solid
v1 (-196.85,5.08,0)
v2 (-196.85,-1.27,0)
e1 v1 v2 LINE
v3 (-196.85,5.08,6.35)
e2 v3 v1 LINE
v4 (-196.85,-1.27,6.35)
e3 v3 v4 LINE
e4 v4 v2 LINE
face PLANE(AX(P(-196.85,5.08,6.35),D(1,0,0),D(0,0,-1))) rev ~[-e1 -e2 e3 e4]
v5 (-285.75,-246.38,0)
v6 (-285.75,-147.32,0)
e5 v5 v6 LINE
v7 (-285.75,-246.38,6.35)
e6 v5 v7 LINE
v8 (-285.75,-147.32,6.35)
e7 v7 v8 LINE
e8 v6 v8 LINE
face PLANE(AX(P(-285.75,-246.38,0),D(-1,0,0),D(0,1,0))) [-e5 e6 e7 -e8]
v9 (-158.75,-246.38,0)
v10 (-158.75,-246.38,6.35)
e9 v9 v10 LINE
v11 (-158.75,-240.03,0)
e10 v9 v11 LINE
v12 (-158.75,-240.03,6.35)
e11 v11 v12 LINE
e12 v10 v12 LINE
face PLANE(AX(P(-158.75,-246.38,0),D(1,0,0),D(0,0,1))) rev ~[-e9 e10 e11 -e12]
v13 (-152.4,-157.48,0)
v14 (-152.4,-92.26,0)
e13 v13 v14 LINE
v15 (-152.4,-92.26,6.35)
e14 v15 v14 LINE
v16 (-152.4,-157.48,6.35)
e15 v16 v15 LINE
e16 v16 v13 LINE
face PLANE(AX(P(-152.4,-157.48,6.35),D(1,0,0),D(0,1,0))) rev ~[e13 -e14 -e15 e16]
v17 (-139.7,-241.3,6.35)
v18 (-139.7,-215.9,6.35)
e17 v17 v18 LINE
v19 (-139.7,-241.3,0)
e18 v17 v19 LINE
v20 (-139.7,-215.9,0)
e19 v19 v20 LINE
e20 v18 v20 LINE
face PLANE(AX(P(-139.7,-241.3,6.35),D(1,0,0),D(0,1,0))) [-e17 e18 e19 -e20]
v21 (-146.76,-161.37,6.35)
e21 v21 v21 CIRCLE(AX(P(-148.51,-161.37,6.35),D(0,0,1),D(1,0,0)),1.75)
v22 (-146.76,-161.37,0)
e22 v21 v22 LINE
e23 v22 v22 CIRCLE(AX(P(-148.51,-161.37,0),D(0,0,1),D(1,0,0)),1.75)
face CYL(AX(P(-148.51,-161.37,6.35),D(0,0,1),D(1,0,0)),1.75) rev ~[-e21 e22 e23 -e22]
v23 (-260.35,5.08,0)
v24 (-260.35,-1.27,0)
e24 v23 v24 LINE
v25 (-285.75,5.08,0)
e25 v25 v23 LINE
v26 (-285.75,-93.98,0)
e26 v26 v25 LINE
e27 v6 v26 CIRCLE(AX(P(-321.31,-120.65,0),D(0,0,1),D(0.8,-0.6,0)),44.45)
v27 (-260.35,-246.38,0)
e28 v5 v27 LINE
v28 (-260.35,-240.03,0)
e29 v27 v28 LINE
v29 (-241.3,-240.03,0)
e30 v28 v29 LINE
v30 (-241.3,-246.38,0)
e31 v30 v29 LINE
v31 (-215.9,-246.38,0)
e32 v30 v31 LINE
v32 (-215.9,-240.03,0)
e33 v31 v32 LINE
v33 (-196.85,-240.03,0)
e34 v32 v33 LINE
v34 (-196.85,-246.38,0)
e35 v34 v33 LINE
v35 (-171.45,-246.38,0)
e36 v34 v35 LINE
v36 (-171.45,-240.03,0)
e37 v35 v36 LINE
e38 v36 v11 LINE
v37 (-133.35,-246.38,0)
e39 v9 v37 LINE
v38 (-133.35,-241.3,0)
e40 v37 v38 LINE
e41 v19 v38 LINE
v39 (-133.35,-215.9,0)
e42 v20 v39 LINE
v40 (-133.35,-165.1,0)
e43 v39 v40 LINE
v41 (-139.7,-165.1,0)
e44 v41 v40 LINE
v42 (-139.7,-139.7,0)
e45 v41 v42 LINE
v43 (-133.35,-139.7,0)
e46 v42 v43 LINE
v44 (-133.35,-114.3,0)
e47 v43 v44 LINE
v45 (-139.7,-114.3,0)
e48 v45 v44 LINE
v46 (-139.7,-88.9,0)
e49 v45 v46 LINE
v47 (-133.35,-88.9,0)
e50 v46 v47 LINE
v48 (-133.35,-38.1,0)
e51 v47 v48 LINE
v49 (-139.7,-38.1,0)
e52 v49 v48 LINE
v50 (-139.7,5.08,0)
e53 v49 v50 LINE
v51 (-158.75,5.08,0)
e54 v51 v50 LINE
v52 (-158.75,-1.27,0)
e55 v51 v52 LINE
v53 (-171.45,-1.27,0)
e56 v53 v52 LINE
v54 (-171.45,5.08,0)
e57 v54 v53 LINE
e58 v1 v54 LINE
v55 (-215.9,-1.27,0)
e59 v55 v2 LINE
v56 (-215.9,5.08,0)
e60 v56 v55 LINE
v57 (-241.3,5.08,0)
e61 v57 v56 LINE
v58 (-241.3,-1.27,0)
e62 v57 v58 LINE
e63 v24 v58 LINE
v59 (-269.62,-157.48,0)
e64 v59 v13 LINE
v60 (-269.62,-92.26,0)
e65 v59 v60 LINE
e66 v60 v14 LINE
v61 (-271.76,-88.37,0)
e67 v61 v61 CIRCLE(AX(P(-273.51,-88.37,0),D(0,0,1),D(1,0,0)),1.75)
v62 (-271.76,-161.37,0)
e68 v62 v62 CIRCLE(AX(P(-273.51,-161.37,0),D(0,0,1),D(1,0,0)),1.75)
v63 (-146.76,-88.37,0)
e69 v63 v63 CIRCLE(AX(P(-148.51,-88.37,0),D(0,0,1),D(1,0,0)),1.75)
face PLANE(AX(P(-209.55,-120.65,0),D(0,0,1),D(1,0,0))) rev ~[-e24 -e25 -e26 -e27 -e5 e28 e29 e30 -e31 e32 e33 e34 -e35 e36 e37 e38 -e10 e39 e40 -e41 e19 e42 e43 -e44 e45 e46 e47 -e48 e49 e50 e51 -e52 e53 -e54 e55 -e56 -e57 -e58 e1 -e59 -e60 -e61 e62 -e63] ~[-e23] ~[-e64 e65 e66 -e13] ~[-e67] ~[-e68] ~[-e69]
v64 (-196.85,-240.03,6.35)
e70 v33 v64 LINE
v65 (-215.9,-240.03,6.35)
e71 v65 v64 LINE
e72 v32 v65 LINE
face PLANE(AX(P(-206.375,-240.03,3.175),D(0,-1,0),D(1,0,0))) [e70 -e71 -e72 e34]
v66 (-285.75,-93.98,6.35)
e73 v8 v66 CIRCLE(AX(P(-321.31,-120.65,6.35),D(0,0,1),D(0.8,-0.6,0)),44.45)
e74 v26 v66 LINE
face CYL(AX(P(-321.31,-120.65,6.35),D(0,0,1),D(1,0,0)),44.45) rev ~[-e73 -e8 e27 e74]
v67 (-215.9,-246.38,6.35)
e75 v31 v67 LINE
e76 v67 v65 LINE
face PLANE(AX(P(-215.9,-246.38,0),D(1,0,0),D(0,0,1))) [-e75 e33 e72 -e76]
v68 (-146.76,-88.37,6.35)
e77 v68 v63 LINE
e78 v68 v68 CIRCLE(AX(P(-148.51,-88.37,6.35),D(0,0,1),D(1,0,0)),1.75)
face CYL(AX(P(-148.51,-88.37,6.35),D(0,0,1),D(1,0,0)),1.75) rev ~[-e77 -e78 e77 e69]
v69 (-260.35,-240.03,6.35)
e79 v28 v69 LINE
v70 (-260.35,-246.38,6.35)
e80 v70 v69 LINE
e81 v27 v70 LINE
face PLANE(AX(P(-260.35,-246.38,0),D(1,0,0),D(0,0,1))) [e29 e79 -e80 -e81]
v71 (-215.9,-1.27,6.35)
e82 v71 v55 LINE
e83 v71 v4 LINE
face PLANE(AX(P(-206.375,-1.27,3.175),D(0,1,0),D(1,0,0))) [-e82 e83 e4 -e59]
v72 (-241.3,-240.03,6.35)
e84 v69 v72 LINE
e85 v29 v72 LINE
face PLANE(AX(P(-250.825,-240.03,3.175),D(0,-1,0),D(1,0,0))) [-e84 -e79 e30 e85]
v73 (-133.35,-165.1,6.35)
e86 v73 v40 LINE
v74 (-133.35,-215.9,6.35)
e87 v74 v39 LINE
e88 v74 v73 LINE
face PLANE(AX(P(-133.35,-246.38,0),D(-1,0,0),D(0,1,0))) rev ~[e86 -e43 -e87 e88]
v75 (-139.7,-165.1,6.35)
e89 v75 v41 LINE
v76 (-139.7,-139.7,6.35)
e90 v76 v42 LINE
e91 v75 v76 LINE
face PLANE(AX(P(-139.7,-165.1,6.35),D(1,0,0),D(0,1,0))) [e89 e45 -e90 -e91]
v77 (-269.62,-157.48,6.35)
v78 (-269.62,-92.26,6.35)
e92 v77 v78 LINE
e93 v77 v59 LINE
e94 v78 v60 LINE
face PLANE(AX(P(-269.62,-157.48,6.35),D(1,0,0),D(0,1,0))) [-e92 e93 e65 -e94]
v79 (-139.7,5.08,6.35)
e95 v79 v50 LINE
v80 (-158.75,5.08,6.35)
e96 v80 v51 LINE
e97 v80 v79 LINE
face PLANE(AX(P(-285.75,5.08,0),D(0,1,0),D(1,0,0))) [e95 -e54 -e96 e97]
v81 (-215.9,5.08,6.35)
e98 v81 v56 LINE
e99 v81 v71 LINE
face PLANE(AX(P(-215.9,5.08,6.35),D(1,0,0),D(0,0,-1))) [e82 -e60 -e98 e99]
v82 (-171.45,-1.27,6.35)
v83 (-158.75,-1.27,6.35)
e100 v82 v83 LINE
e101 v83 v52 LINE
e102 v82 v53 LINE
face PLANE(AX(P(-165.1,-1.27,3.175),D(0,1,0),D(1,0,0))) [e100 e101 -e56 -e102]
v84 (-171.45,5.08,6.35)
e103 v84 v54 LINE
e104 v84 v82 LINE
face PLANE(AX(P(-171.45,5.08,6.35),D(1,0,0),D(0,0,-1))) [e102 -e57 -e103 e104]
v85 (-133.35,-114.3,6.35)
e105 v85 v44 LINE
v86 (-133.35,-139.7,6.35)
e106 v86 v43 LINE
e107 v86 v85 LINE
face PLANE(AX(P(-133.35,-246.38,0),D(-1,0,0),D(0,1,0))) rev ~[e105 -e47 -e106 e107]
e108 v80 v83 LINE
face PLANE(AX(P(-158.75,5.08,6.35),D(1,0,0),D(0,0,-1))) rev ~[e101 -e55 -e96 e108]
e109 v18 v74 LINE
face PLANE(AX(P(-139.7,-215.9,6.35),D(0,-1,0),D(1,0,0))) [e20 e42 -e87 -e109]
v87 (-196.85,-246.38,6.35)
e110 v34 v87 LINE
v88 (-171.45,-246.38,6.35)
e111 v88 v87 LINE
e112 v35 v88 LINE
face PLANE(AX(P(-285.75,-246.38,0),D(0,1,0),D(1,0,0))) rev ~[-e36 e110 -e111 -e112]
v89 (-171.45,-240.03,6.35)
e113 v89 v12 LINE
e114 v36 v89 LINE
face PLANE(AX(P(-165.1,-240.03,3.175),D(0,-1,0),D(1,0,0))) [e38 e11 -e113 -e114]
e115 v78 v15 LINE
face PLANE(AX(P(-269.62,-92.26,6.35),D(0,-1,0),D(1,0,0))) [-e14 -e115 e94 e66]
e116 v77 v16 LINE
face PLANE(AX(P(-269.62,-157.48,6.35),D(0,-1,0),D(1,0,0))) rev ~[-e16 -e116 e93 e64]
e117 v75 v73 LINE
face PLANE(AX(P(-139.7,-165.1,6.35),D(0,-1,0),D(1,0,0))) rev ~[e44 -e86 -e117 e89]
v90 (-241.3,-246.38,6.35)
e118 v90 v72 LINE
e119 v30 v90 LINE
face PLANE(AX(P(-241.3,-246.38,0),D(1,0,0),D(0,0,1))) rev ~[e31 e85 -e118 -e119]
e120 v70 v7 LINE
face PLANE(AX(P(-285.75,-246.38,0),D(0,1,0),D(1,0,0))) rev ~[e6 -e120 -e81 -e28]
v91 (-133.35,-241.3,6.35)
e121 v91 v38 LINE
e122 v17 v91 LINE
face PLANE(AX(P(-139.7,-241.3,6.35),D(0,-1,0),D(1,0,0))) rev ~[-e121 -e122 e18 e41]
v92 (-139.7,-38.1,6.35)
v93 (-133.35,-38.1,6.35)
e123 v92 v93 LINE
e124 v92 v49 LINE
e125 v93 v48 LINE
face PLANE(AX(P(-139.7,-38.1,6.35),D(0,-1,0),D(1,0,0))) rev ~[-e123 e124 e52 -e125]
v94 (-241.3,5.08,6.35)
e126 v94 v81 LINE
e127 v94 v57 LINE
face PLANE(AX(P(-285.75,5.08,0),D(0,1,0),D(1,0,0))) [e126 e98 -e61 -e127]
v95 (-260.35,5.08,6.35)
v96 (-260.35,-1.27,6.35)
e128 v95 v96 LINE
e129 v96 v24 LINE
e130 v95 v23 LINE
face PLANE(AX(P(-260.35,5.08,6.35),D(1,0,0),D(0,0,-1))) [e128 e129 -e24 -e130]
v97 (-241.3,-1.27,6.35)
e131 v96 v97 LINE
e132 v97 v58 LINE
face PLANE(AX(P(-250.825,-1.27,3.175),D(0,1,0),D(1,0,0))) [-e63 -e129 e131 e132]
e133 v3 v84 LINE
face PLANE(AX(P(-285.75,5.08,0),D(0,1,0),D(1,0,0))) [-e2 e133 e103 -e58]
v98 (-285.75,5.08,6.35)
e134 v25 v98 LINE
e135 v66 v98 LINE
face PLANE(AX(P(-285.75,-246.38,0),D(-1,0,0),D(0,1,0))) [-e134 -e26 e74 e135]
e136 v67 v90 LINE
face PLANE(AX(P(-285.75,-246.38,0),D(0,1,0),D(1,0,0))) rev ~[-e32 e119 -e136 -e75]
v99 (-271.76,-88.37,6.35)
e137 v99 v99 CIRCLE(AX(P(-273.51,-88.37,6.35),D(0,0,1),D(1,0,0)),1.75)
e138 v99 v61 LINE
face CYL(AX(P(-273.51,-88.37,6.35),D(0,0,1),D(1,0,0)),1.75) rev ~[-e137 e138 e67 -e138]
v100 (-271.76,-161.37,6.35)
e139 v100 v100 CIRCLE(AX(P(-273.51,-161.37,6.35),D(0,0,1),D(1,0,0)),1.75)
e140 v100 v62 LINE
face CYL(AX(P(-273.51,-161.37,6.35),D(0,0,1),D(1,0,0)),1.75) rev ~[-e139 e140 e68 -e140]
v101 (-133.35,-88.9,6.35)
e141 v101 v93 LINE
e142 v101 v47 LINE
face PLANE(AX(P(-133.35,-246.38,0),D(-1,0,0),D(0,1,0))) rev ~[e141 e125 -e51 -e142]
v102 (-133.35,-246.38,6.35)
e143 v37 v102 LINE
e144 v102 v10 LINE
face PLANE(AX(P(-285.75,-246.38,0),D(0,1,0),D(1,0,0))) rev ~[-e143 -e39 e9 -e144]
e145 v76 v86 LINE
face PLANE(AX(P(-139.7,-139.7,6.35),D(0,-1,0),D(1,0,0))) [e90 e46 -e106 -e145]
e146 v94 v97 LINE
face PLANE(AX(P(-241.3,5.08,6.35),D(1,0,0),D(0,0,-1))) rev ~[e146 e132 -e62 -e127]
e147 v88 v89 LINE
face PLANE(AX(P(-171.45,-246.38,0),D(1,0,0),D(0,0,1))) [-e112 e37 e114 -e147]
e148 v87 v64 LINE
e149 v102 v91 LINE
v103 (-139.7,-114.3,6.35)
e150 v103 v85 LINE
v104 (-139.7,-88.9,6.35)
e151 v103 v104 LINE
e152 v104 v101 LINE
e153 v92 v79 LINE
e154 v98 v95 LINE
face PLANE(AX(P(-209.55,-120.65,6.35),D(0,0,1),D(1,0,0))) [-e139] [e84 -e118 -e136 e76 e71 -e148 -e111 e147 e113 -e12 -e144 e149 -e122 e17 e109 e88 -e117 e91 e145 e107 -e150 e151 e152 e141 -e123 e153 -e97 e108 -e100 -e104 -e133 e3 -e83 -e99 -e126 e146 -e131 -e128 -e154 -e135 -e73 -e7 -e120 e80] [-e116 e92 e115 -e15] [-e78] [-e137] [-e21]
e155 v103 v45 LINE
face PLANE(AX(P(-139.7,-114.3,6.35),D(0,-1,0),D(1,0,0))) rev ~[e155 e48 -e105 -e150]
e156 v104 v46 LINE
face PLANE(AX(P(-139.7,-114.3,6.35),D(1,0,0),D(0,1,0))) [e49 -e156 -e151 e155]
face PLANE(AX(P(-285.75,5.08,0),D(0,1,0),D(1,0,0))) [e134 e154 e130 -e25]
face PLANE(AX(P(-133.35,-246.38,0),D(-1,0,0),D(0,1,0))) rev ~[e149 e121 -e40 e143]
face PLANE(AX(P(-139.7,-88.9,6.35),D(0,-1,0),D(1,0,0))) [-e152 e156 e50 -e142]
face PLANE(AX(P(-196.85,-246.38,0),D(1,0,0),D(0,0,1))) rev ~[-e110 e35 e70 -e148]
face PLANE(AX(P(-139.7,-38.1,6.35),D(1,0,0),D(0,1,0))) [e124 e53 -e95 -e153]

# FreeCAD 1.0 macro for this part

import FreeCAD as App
import Part
import Sketcher

V = App.Vector
Q = App.Units.Quantity


def add_polygon(sketch, points):
    """Adds a closed chain of lines whose ends are joined by coincident constraints."""
    first, n = sketch.GeometryCount, len(points)
    for a, b in zip(points, points[1:] + points[:1]):
        sketch.addGeometry(Part.LineSegment(App.Vector(*a, 0), App.Vector(*b, 0)), False)
    for i in range(n):
        sketch.addConstraint(Sketcher.Constraint("Coincident", first + i, 2, first + (i + 1) % n, 1))

doc = App.newDocument("Part")
body = doc.addObject("PartDesign::Body", "Body")

sketch1 = body.newObject("Sketcher::SketchObject", "Sketch")
sketch1.AttachmentSupport = (doc.getObject("XY_Plane"), [""])
sketch1.MapMode = "FlatFace"
add_polygon(sketch1, [(-286, 5), (-286, -246), (-133, -246), (-133, 5)])
sketch1.addConstraint([
    Sketcher.Constraint("Vertical", 0),
    Sketcher.Constraint("Horizontal", 1),
    Sketcher.Constraint("Vertical", 2),
    Sketcher.Constraint("Horizontal", 3),
    Sketcher.Constraint("DistanceX", 1, 1, 1, 2, Q("6 in")),
    Sketcher.Constraint("DistanceY", 0, 2, 0, 1, Q("9.9 in")),
    Sketcher.Constraint("DistanceY", 0, 2, -1, 1, Q("9.7 in")),
    Sketcher.Constraint("DistanceX", 0, 2, -1, 1, Q("11.25 in")),
])
pad1 = body.newObject("PartDesign::Pad", "Pad")
pad1.Profile = sketch1
pad1.Length = Q("0.25 in")

sketch2 = body.newObject("Sketcher::SketchObject", "Sketch001")
sketch2.AttachmentSupport = (doc.getObject("XZ_Plane"), [""])
sketch2.MapMode = "FlatFace"
sketch2.AttachmentOffset = App.Placement(V(0, 0, -0.2 * 25.4), App.Rotation())
add_polygon(sketch2, [(-260, 0), (-260, 6), (-241, 6), (-241, 0)])
add_polygon(sketch2, [(-216, 0), (-216, 6), (-197, 6), (-197, 0)])
add_polygon(sketch2, [(-171, 0), (-171, 6), (-159, 6), (-159, 0)])
sketch2.addConstraint([
    Sketcher.Constraint("Vertical", 0),
    Sketcher.Constraint("Horizontal", 1),
    Sketcher.Constraint("Vertical", 2),
    Sketcher.Constraint("Horizontal", 3),
    Sketcher.Constraint("Vertical", 4),
    Sketcher.Constraint("Horizontal", 5),
    Sketcher.Constraint("Vertical", 6),
    Sketcher.Constraint("Horizontal", 7),
    Sketcher.Constraint("Vertical", 8),
    Sketcher.Constraint("Horizontal", 9),
    Sketcher.Constraint("Vertical", 10),
    Sketcher.Constraint("Horizontal", 11),
    Sketcher.Constraint("PointOnObject", 2, 2, -1),
    Sketcher.Constraint("PointOnObject", 6, 2, -1),
    Sketcher.Constraint("PointOnObject", 10, 2, -1),
    Sketcher.Constraint("Horizontal", 1, 2, 4, 2),
    Sketcher.Constraint("Horizontal", 5, 2, 8, 2),
    Sketcher.Constraint("Equal", 3, 5),
    Sketcher.Constraint("DistanceX", 9, 1, 9, 2, Q("0.5 in")),
    Sketcher.Constraint("DistanceX", 1, 2, 4, 2, Q("1 in")),
    Sketcher.Constraint("DistanceX", 5, 2, 8, 2, Q("1 in")),
    Sketcher.Constraint("DistanceX", 1, 1, 1, 2, Q("0.75 in")),
    Sketcher.Constraint("DistanceY", 0, 1, 0, 2, Q("0.25 in")),
    Sketcher.Constraint("DistanceX", 1, 2, -1, 1, Q("9.5 in")),
])
pocket1 = body.newObject("PartDesign::Pocket", "Pocket")
pocket1.Profile = sketch2
pocket1.Length = Q("0.25 in")
pocket1.Reversed = True

sketch3 = body.newObject("Sketcher::SketchObject", "Sketch002")
sketch3.AttachmentSupport = (doc.getObject("XZ_Plane"), [""])
sketch3.MapMode = "FlatFace"
sketch3.AttachmentOffset = App.Placement(V(0, 0, 9.7 * 25.4), App.Rotation())
add_polygon(sketch3, [(-260, 6), (-260, 0), (-241, 0), (-241, 6)])
add_polygon(sketch3, [(-216, 6), (-216, 0), (-197, 0), (-197, 6)])
add_polygon(sketch3, [(-171, 6), (-171, 0), (-159, 0), (-159, 6)])
sketch3.addConstraint([
    Sketcher.Constraint("Vertical", 0),
    Sketcher.Constraint("Horizontal", 1),
    Sketcher.Constraint("Vertical", 2),
    Sketcher.Constraint("Horizontal", 3),
    Sketcher.Constraint("Vertical", 4),
    Sketcher.Constraint("Horizontal", 5),
    Sketcher.Constraint("Vertical", 6),
    Sketcher.Constraint("Horizontal", 7),
    Sketcher.Constraint("Vertical", 8),
    Sketcher.Constraint("Horizontal", 9),
    Sketcher.Constraint("Vertical", 10),
    Sketcher.Constraint("Horizontal", 11),
    Sketcher.Constraint("PointOnObject", 0, 2, -1),
    Sketcher.Constraint("PointOnObject", 4, 2, -1),
    Sketcher.Constraint("PointOnObject", 8, 2, -1),
    Sketcher.Constraint("Horizontal", 3, 2, 6, 2),
    Sketcher.Constraint("Horizontal", 7, 2, 10, 2),
    Sketcher.Constraint("Equal", 3, 5),
    Sketcher.Constraint("DistanceX", 9, 1, 9, 2, Q("0.5 in")),
    Sketcher.Constraint("DistanceX", 1, 2, 4, 2, Q("1 in")),
    Sketcher.Constraint("DistanceX", 5, 2, 8, 2, Q("1 in")),
    Sketcher.Constraint("DistanceX", 1, 1, 1, 2, Q("0.75 in")),
    Sketcher.Constraint("DistanceY", 0, 2, 0, 1, Q("0.25 in")),
    Sketcher.Constraint("DistanceX", 1, 2, -1, 1, Q("9.5 in")),
])
pocket2 = body.newObject("PartDesign::Pocket", "Pocket001")
pocket2.Profile = sketch3
pocket2.Type = "TwoLengths"
pocket2.Length = 1
pocket2.Length2 = Q("0.25 in")
pocket2.Reversed = True

sketch4 = body.newObject("Sketcher::SketchObject", "Sketch003")
sketch4.AttachmentSupport = (doc.getObject("XY_Plane"), [""])
sketch4.MapMode = "FlatFace"
sketch4.AttachmentOffset = App.Placement(V(0, 0, 0.25 * 25.4), App.Rotation())
add_polygon(sketch4, [(-140, -140), (-140, -165), (-133, -165), (-133, -140)])
add_polygon(sketch4, [(-140, -89), (-140, -114), (-133, -114), (-133, -89)])
add_polygon(sketch4, [(-140, 5), (-140, -38), (-133, -38), (-133, 5)])
add_polygon(sketch4, [(-140, -216), (-140, -241), (-133, -241), (-133, -216)])
sketch4.addConstraint([
    Sketcher.Constraint("Vertical", 0),
    Sketcher.Constraint("Horizontal", 1),
    Sketcher.Constraint("Vertical", 2),
    Sketcher.Constraint("Horizontal", 3),
    Sketcher.Constraint("Vertical", 4),
    Sketcher.Constraint("Horizontal", 5),
    Sketcher.Constraint("Vertical", 6),
    Sketcher.Constraint("Horizontal", 7),
    Sketcher.Constraint("Vertical", 8),
    Sketcher.Constraint("Horizontal", 9),
    Sketcher.Constraint("Vertical", 10),
    Sketcher.Constraint("Horizontal", 11),
    Sketcher.Constraint("Vertical", 12),
    Sketcher.Constraint("Horizontal", 13),
    Sketcher.Constraint("Vertical", 14),
    Sketcher.Constraint("Horizontal", 15),
    Sketcher.Constraint("Vertical", 3, 2, 4, 2),
    Sketcher.Constraint("Vertical", 2, 2, 5, 2),
    Sketcher.Constraint("Vertical", 7, 2, 8, 2),
    Sketcher.Constraint("Vertical", 6, 2, 9, 2),
    Sketcher.Constraint("Vertical", 11, 2, 12, 2),
    Sketcher.Constraint("Vertical", 10, 2, 13, 2),
    Sketcher.Constraint("Equal", 2, 4),
    Sketcher.Constraint("Equal", 6, 12),
    Sketcher.Constraint("DistanceY", 0, 2, 0, 1, Q("1 in")),
    Sketcher.Constraint("DistanceY", 8, 2, 8, 1, Q("1.7 in")),
    Sketcher.Constraint("DistanceY", 3, 2, 4, 2, Q("1 in")),
    Sketcher.Constraint("DistanceY", 7, 2, 8, 2, Q("2 in")),
    Sketcher.Constraint("DistanceY", 12, 2, 0, 2, Q("3 in")),
    Sketcher.Constraint("DistanceX", 1, 1, 1, 2, Q("0.25 in")),
    Sketcher.Constraint("DistanceX", 0, 2, -1, 1, Q("5.5 in")),
    Sketcher.Constraint("DistanceY", 0, 2, -1, 1, Q("6.5 in")),
])
pocket3 = body.newObject("PartDesign::Pocket", "Pocket002")
pocket3.Profile = sketch4
pocket3.Length = Q("0.25 in")

sketch5 = body.newObject("Sketcher::SketchObject", "Sketch004")
sketch5.AttachmentSupport = (doc.getObject("XY_Plane"), [""])
sketch5.MapMode = "FlatFace"
sketch5.AttachmentOffset = App.Placement(V(0, 0, 0.25 * 25.4), App.Rotation())
sketch5.addGeometry(Part.Circle(V(-321, -121, 0), V(0, 0, 1), 44), False)
sketch5.addConstraint([
    Sketcher.Constraint("Diameter", 0, Q("3.5 in")),
    Sketcher.Constraint("DistanceX", 0, 3, -1, 1, Q("12.65 in")),
    Sketcher.Constraint("DistanceY", 0, 3, -1, 1, Q("4.75 in")),
])
pocket4 = body.newObject("PartDesign::Pocket", "Pocket003")
pocket4.Profile = sketch5
pocket4.Type = "ThroughAll"

sketch6 = body.newObject("Sketcher::SketchObject", "Sketch005")
sketch6.AttachmentSupport = (doc.getObject("XY_Plane"), [""])
sketch6.MapMode = "FlatFace"
sketch6.AttachmentOffset = App.Placement(V(0, 0, 0.25 * 25.4), App.Rotation())
add_polygon(sketch6, [(-269.6, -92.3), (-269.6, -157.5), (-152.4, -157.5), (-152.4, -92.3)])
sketch6.addGeometry(Part.Circle(V(-273.5, -88.4, 0), V(0, 0, 1), 1.8), False)
sketch6.addGeometry(Part.Circle(V(-273.5, -161.4, 0), V(0, 0, 1), 1.8), False)
sketch6.addGeometry(Part.Circle(V(-148.5, -88.4, 0), V(0, 0, 1), 1.8), False)
sketch6.addGeometry(Part.Circle(V(-148.5, -161.4, 0), V(0, 0, 1), 1.8), False)
sketch6.addConstraint([
    Sketcher.Constraint("Vertical", 0),
    Sketcher.Constraint("Horizontal", 1),
    Sketcher.Constraint("Vertical", 2),
    Sketcher.Constraint("Horizontal", 3),
    Sketcher.Constraint("Equal", 4, 5),
    Sketcher.Constraint("Equal", 5, 6),
    Sketcher.Constraint("Equal", 6, 7),
    Sketcher.Constraint("Horizontal", 4, 3, 6, 3),
    Sketcher.Constraint("Horizontal", 5, 3, 7, 3),
    Sketcher.Constraint("Vertical", 4, 3, 5, 3),
    Sketcher.Constraint("Vertical", 6, 3, 7, 3),
    Sketcher.Constraint("DistanceX", 1, 2, -1, 1, Q("6 in")),
    Sketcher.Constraint("DistanceY", 0, 2, -1, 1, Q("6.2 in")),
    Sketcher.Constraint("Diameter", 4, Q("3.5 mm")),
    Sketcher.Constraint("DistanceX", 1, 1, 1, 2, Q("117.22 mm")),
    Sketcher.Constraint("DistanceY", 0, 2, 0, 1, Q("65.22 mm")),
    Sketcher.Constraint("DistanceX", 4, 3, -1, 1, Q("273.51 mm")),
    Sketcher.Constraint("DistanceY", 4, 3, -1, 1, Q("88.37 mm")),
    Sketcher.Constraint("DistanceY", 5, 3, -1, 1, Q("161.37 mm")),
    Sketcher.Constraint("DistanceX", 6, 3, -1, 1, Q("148.51 mm")),
])
pocket5 = body.newObject("PartDesign::Pocket", "Pocket004")
pocket5.Profile = sketch6
pocket5.Type = "ThroughAll"

doc.recompute()
